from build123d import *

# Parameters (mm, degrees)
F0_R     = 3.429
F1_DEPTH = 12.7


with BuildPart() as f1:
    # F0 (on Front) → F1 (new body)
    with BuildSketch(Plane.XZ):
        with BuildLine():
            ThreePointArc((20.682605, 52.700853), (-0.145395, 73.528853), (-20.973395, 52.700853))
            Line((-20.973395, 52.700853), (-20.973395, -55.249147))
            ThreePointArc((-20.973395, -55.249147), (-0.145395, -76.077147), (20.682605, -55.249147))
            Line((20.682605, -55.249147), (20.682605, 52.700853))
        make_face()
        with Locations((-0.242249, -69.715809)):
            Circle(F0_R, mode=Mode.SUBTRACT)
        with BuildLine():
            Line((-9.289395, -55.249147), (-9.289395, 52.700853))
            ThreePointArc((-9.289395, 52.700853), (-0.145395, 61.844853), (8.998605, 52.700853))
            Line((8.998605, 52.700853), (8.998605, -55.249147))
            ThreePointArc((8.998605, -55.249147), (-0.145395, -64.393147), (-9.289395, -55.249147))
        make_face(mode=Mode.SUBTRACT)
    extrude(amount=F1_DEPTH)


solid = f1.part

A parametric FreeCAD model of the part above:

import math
import FreeCAD as App
import Part
import Sketcher
from FreeCAD import Vector
Q = App.Units.Quantity

doc = App.newDocument("Part")
params = doc.addObject("Spreadsheet::Sheet", "Params")
for row, (alias, value) in enumerate([
    ("sketch1_diameter", "0.27 in"),
    ("sketch1_radius", "0.82 in"),
    ("sketch1_radius2", "0.36 in"),
    ("sketch1_height", "4.25 in"),
    ("pad1_length", "0.5 in"),
], start=1):
    params.set(f"A{row}", alias)
    params.set(f"B{row}", "=" + value)
    params.setAlias(f"B{row}", alias)

body = doc.addObject("PartDesign::Body", "Body")

sketch1 = doc.addObject("Sketcher::SketchObject", "Sketch")
body.addObject(sketch1)
sketch1.AttachmentSupport = (doc.XZ_Plane, [""])
sketch1.MapMode = "FlatFace"
sketch1.addGeometry([
    Part.ArcOfCircle(Part.Circle(Vector(-0.1, 52.7, 0), Vector(0, 0, 1), 20.8), math.radians(0), math.radians(180)),
    Part.LineSegment(Vector(-21, 52.7, 0), Vector(-21, -55.2, 0)),
    Part.ArcOfCircle(Part.Circle(Vector(-0.1, -55.2, 0), Vector(0, 0, 1), 20.8), math.radians(180), math.radians(360)),
    Part.LineSegment(Vector(20.7, -55.2, 0), Vector(20.7, 52.7, 0)),
    Part.Circle(Vector(-0.2, -69.7, 0), Vector(0, 0, 1), 3.4),
    Part.ArcOfCircle(Part.Circle(Vector(-0.1, -55.2, 0), Vector(0, 0, 1), 9.1), math.radians(180), math.radians(360)),
    Part.LineSegment(Vector(-9.3, -55.2, 0), Vector(-9.3, 52.7, 0)),
    Part.ArcOfCircle(Part.Circle(Vector(-0.1, 52.7, 0), Vector(0, 0, 1), 9.1), math.radians(0), math.radians(180)),
    Part.LineSegment(Vector(9, 52.7, 0), Vector(9, -55.2, 0)),
], False)
sketch1.addConstraint([
    Sketcher.Constraint("Tangent", 0, 2, 1, 1),
    Sketcher.Constraint("Tangent", 1, 2, 2, 1),
    Sketcher.Constraint("Tangent", 2, 2, 3, 1),
    Sketcher.Constraint("Tangent", 3, 2, 0, 1),
    Sketcher.Constraint("Tangent", 5, 1, 6, 1),
    Sketcher.Constraint("Tangent", 6, 2, 7, 2),
    Sketcher.Constraint("Tangent", 7, 1, 8, 1),
    Sketcher.Constraint("Tangent", 8, 2, 5, 2),
    Sketcher.Constraint("Vertical", 1),
    Sketcher.Constraint("Vertical", 3),
    Sketcher.Constraint("Vertical", 6),
    Sketcher.Constraint("Vertical", 8),
    Sketcher.Constraint("Coincident", 5, 3, 2, 3),
    Sketcher.Constraint("Horizontal", 7, 3, 0, 2),
    Sketcher.Constraint("Diameter", 4, Q("0.27 in")),
    Sketcher.Constraint("Radius", 0, Q("0.82 in")),
    Sketcher.Constraint("Radius", 5, Q("0.36 in")),
    Sketcher.Constraint("DistanceY", 1, 2, 1, 1, Q("4.25 in")),
    Sketcher.Constraint("DistanceX", 4, 3, -1, 1, 0.242249),
    Sketcher.Constraint("DistanceY", 4, 3, -1, 1, 69.715809),
    Sketcher.Constraint("DistanceY", 4, 3, 2, 3, 14.466662),
    Sketcher.Constraint("DistanceX", 0, 3, -1, 1, 0.145395),
])
sketch1.setExpression("Constraints[14]", "Params.sketch1_diameter")
sketch1.setExpression("Constraints[15]", "Params.sketch1_radius")
sketch1.setExpression("Constraints[16]", "Params.sketch1_radius2")
sketch1.setExpression("Constraints[17]", "Params.sketch1_height")
pad1 = doc.addObject("PartDesign::Pad", "Pad")
body.addObject(pad1)
pad1.Profile = sketch1
pad1.setExpression("Length", "Params.pad1_length")

doc.recompute()
